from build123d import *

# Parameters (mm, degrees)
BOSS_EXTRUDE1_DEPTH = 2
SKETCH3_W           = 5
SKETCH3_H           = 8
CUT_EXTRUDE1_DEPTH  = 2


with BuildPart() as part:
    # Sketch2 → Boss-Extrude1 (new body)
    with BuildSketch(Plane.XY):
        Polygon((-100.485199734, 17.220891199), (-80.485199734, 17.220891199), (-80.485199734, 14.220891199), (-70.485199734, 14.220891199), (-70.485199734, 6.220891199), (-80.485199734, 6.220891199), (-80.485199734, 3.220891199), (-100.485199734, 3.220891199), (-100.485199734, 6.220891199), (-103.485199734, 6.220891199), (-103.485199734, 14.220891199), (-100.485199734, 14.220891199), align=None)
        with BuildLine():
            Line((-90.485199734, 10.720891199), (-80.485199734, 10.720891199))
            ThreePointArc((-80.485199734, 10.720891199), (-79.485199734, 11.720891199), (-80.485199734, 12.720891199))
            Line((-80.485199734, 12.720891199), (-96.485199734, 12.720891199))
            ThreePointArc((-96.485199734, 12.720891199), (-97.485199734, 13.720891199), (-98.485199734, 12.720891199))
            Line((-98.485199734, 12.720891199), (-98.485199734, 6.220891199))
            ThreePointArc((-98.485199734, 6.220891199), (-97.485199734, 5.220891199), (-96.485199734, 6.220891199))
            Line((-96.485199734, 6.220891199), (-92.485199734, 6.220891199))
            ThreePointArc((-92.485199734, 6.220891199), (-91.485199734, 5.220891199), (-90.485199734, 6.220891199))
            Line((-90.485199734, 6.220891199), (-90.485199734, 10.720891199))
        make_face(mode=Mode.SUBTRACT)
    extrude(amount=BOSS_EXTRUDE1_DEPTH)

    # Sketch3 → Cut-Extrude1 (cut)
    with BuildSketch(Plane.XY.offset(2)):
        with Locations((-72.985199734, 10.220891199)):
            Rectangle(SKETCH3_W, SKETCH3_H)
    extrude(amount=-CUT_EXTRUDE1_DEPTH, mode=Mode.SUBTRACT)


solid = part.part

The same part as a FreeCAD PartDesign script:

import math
import FreeCAD as App
import Part
import Sketcher

V = App.Vector
Q = App.Units.Quantity

doc = App.newDocument("Part")
body = doc.addObject("PartDesign::Body", "Body")

# Sketch on XY plane
sketch1 = body.newObject("Sketcher::SketchObject", "Sketch")
sketch1.AttachmentSupport = (doc.getObject("XY_Plane"), [""])
sketch1.MapMode = "FlatFace"
sketch1.addGeometry([
    Part.LineSegment(V(-80.5, 17.2, 0), V(-100.5, 17.2, 0)),  # 0
    Part.LineSegment(V(-100.5, 17.2, 0), V(-100.5, 14.2, 0)),  # 1
    Part.LineSegment(V(-100.5, 14.2, 0), V(-103.5, 14.2, 0)),  # 2
    Part.LineSegment(V(-103.5, 14.2, 0), V(-103.5, 6.2, 0)),  # 3
    Part.LineSegment(V(-103.5, 6.2, 0), V(-100.5, 6.2, 0)),  # 4
    Part.LineSegment(V(-100.5, 6.2, 0), V(-100.5, 3.2, 0)),  # 5
    Part.LineSegment(V(-100.5, 3.2, 0), V(-80.5, 3.2, 0)),  # 6
    Part.LineSegment(V(-80.5, 3.2, 0), V(-80.5, 6.2, 0)),  # 7
    Part.LineSegment(V(-80.5, 6.2, 0), V(-70.5, 6.2, 0)),  # 8
    Part.LineSegment(V(-70.5, 6.2, 0), V(-70.5, 14.2, 0)),  # 9
    Part.LineSegment(V(-70.5, 14.2, 0), V(-80.5, 14.2, 0)),  # 10
    Part.LineSegment(V(-80.5, 14.2, 0), V(-80.5, 17.2, 0)),  # 11
    Part.LineSegment(V(-90.5, 10.7, 0), V(-90.5, 6.2, 0)),  # 12
    Part.ArcOfCircle(Part.Circle(V(-91.5, 6.2, 0), V(0, 0, 1), 1), math.radians(180), math.radians(360)),  # 13
    Part.LineSegment(V(-92.5, 6.2, 0), V(-96.5, 6.2, 0)),  # 14
    Part.ArcOfCircle(Part.Circle(V(-97.5, 6.2, 0), V(0, 0, 1), 1), math.radians(180), math.radians(360)),  # 15
    Part.LineSegment(V(-98.5, 6.2, 0), V(-98.5, 12.7, 0)),  # 16
    Part.ArcOfCircle(Part.Circle(V(-97.5, 12.7, 0), V(0, 0, 1), 1), math.radians(0), math.radians(180)),  # 17
    Part.LineSegment(V(-96.5, 12.7, 0), V(-80.5, 12.7, 0)),  # 18
    Part.ArcOfCircle(Part.Circle(V(-80.5, 11.7, 0), V(0, 0, 1), 1), math.radians(-90), math.radians(90)),  # 19
    Part.LineSegment(V(-80.5, 10.7, 0), V(-90.5, 10.7, 0)),  # 20
], False)
sketch1.addConstraint([
    Sketcher.Constraint("Coincident", 0, 2, 1, 1),
    Sketcher.Constraint("Coincident", 1, 2, 2, 1),
    Sketcher.Constraint("Coincident", 2, 2, 3, 1),
    Sketcher.Constraint("Coincident", 3, 2, 4, 1),
    Sketcher.Constraint("Coincident", 4, 2, 5, 1),
    Sketcher.Constraint("Coincident", 5, 2, 6, 1),
    Sketcher.Constraint("Coincident", 6, 2, 7, 1),
    Sketcher.Constraint("Coincident", 7, 2, 8, 1),
    Sketcher.Constraint("Coincident", 8, 2, 9, 1),
    Sketcher.Constraint("Coincident", 9, 2, 10, 1),
    Sketcher.Constraint("Coincident", 10, 2, 11, 1),
    Sketcher.Constraint("Coincident", 11, 2, 0, 1),
    Sketcher.Constraint("Tangent", 12, 2, 13, 2),
    Sketcher.Constraint("Coincident", 13, 1, 14, 1),
    Sketcher.Constraint("Coincident", 14, 2, 15, 2),
    Sketcher.Constraint("Tangent", 15, 1, 16, 1),
    Sketcher.Constraint("Tangent", 16, 2, 17, 2),
    Sketcher.Constraint("Coincident", 17, 1, 18, 1),
    Sketcher.Constraint("Tangent", 18, 2, 19, 2),
    Sketcher.Constraint("Tangent", 19, 1, 20, 1),
    Sketcher.Constraint("Coincident", 20, 2, 12, 1),
    Sketcher.Constraint("Horizontal", 0),
    Sketcher.Constraint("Vertical", 1),
    Sketcher.Constraint("Horizontal", 2),
    Sketcher.Constraint("Vertical", 3),
    Sketcher.Constraint("Horizontal", 4),
    Sketcher.Constraint("Vertical", 5),
    Sketcher.Constraint("Horizontal", 6),
    Sketcher.Constraint("Vertical", 7),
    Sketcher.Constraint("Horizontal", 8),
    Sketcher.Constraint("Vertical", 9),
    Sketcher.Constraint("Horizontal", 10),
    Sketcher.Constraint("Vertical", 11),
    Sketcher.Constraint("Vertical", 12),
    Sketcher.Constraint("Horizontal", 14),
    Sketcher.Constraint("Vertical", 16),
    Sketcher.Constraint("Horizontal", 18),
    Sketcher.Constraint("Horizontal", 20),
    Sketcher.Constraint("Equal", 13, 15),
    Sketcher.Constraint("Equal", 15, 17),
    Sketcher.Constraint("Equal", 17, 19),
    Sketcher.Constraint("Horizontal", 13, 3, 15, 3),
    Sketcher.Constraint("Horizontal", 15, 3, 3, 2),
    Sketcher.Constraint("Horizontal", 4, 2, 7, 2),
    Sketcher.Constraint("Horizontal", 2, 2, 9, 2),
    Sketcher.Constraint("Horizontal", 12, 2, 13, 1),
    Sketcher.Constraint("Horizontal", 16, 2, 17, 1),
    Sketcher.Constraint("Vertical", 1, 2, 4, 2),
    Sketcher.Constraint("Vertical", 19, 3, 6, 2),
    Sketcher.Constraint("Vertical", 7, 2, 10, 2),
    Sketcher.Constraint("Equal", 10, 20),
    Sketcher.Constraint("Equal", 4, 1),
    Sketcher.Constraint("Equal", 1, 5),
    Sketcher.Constraint("Radius", 13, Q("1 mm")),
    Sketcher.Constraint("DistanceX", 0, 2, 0, 1, Q("20 mm")),
    Sketcher.Constraint("DistanceX", 2, 2, 2, 1, Q("3 mm")),
    Sketcher.Constraint("DistanceX", 8, 1, 8, 2, Q("10 mm")),
    Sketcher.Constraint("DistanceX", 14, 2, 14, 1, Q("4 mm")),
    Sketcher.Constraint("DistanceY", 3, 2, 3, 1, Q("8 mm")),
    Sketcher.Constraint("DistanceY", 12, 2, 12, 1, Q("4.5 mm")),
    Sketcher.Constraint("DistanceX", 13, 3, -1, 1, Q("91.4852 mm")),
    Sketcher.Constraint("DistanceY", -1, 1, 13, 3, Q("6.220891 mm")),
])
pad1 = body.newObject("PartDesign::Pad", "Pad")
pad1.Profile = sketch1
pad1.Length = 2

# Sketch on XY plane
sketch2 = body.newObject("Sketcher::SketchObject", "Sketch001")
sketch2.AttachmentSupport = (doc.getObject("XY_Plane"), [""])
sketch2.MapMode = "FlatFace"
sketch2.AttachmentOffset = App.Placement(V(0, 0, 2), App.Rotation())
sketch2.addGeometry([
    Part.LineSegment(V(-75, 14, 0), V(-75, 6, 0)),
    Part.LineSegment(V(-75, 6, 0), V(-70, 6, 0)),
    Part.LineSegment(V(-70, 6, 0), V(-70, 14, 0)),
    Part.LineSegment(V(-70, 14, 0), V(-75, 14, 0)),
], False)
sketch2.addConstraint([
    Sketcher.Constraint("Coincident", 0, 2, 1, 1),
    Sketcher.Constraint("Coincident", 1, 2, 2, 1),
    Sketcher.Constraint("Coincident", 2, 2, 3, 1),
    Sketcher.Constraint("Coincident", 3, 2, 0, 1),
    Sketcher.Constraint("Vertical", 0),
    Sketcher.Constraint("Horizontal", 1),
    Sketcher.Constraint("Vertical", 2),
    Sketcher.Constraint("Horizontal", 3),
    Sketcher.Constraint("DistanceX", 1, 1, 1, 2, Q("5 mm")),
    Sketcher.Constraint("DistanceY", 0, 2, 0, 1, Q("8 mm")),
    Sketcher.Constraint("DistanceX", 0, 2, -1, 1, Q("75.4852 mm")),
    Sketcher.Constraint("DistanceY", -1, 1, 0, 2, Q("6.220891 mm")),
])
pocket1 = body.newObject("PartDesign::Pocket", "Pocket")
pocket1.Profile = sketch2
pocket1.Length = 2

doc.recompute()
